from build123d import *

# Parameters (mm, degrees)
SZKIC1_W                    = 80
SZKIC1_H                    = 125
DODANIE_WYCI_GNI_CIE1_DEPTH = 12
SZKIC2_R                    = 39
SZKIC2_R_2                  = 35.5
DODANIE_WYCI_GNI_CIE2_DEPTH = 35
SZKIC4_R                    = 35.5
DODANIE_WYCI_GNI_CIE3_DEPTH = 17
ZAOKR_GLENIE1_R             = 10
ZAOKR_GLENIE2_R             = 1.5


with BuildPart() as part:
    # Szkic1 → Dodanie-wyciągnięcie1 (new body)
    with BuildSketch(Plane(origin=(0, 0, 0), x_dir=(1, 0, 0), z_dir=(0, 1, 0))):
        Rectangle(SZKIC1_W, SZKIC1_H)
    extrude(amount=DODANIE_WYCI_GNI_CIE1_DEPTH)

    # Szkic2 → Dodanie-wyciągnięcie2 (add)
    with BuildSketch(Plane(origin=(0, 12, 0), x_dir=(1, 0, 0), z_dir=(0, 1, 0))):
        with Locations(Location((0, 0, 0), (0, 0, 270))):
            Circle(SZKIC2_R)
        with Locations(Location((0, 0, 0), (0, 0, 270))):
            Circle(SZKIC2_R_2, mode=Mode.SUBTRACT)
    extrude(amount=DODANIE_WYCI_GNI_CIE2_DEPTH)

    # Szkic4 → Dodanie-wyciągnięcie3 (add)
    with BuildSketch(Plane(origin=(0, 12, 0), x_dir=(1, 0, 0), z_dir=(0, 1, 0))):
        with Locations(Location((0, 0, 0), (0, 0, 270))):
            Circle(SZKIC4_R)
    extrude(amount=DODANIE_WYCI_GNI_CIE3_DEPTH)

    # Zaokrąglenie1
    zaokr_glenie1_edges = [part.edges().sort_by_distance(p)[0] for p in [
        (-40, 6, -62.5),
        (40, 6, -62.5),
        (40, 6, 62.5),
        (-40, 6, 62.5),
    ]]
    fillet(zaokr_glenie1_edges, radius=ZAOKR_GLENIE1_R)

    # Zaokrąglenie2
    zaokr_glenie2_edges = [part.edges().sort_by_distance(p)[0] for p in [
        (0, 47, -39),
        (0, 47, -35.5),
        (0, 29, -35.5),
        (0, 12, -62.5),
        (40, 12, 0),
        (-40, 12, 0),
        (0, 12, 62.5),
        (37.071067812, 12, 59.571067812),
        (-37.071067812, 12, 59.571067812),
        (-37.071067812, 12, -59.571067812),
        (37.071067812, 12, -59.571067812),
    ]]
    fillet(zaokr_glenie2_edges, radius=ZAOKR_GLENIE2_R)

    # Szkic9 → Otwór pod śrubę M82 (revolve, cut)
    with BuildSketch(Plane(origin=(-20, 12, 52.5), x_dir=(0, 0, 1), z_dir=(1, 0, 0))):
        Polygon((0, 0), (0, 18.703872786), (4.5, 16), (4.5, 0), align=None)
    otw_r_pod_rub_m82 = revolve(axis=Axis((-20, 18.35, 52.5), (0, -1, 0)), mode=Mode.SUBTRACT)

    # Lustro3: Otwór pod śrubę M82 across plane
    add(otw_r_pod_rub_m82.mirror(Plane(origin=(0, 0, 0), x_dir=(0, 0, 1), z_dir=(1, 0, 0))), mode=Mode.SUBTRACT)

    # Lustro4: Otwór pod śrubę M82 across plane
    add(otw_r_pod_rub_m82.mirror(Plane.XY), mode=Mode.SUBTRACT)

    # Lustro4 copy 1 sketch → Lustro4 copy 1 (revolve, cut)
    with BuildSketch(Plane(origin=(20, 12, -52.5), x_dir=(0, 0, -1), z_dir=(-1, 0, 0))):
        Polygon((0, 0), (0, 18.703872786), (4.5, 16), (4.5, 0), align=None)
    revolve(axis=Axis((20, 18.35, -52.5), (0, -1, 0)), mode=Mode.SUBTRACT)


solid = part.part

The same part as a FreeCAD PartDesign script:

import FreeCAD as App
import Part
import Sketcher
from FreeCAD import Vector
Q = App.Units.Quantity


def edges_at(feature, points):
    """Names of the edges that pass closest to the given points."""
    edges = feature.Shape.Edges
    near = lambda p: min(range(len(edges)), key=lambda i: edges[i].distToShape(Part.Vertex(*p))[0])
    return sorted({f"Edge{near(p) + 1}" for p in points})


def add_polygon(sketch, points):
    """Adds a closed chain of lines whose ends are joined by coincident constraints."""
    first, n = sketch.GeometryCount, len(points)
    for a, b in zip(points, points[1:] + points[:1]):
        sketch.addGeometry(Part.LineSegment(App.Vector(*a, 0), App.Vector(*b, 0)), False)
    for i in range(n):
        sketch.addConstraint(Sketcher.Constraint("Coincident", first + i, 2, first + (i + 1) % n, 1))

doc = App.newDocument("Part")
body = doc.addObject("PartDesign::Body", "Body")

sketch1 = body.newObject("Sketcher::SketchObject", "Sketch")
sketch1.AttachmentSupport = (doc.getObject("XZ_Plane"), [""])
sketch1.MapMode = "FlatFace"
add_polygon(sketch1, [(-40, -62), (-40, 62), (40, 62), (40, -62)])
sketch1.addConstraint([
    Sketcher.Constraint("Vertical", 0),
    Sketcher.Constraint("Horizontal", 1),
    Sketcher.Constraint("Vertical", 2),
    Sketcher.Constraint("Horizontal", 3),
    Sketcher.Constraint("Symmetric", 0, 2, 2, 2, -1, 1),
    Sketcher.Constraint("DistanceX", 1, 1, 1, 2, Q("80 mm")),
    Sketcher.Constraint("DistanceY", 0, 1, 0, 2, Q("125 mm")),
])
pad1 = body.newObject("PartDesign::Pad", "Pad")
pad1.Profile = sketch1
pad1.Length = 12
pad1.Reversed = True

sketch2 = body.newObject("Sketcher::SketchObject", "Sketch001")
sketch2.AttachmentSupport = (doc.getObject("XZ_Plane"), [""])
sketch2.MapMode = "FlatFace"
sketch2.AttachmentOffset = App.Placement(Vector(0, 0, -12), App.Rotation())
sketch2.addGeometry([
    Part.Circle(Vector(0, 0, 0), Vector(0, 0, 1), 39),
    Part.Circle(Vector(0, 0, 0), Vector(0, 0, 1), 36),
], False)
sketch2.addConstraint([
    Sketcher.Constraint("Coincident", 0, 3, -1, 1),
    Sketcher.Constraint("Coincident", 1, 3, -1, 1),
    Sketcher.Constraint("Diameter", 0, Q("78 mm")),
    Sketcher.Constraint("Diameter", 1, Q("71 mm")),
])
pad2 = body.newObject("PartDesign::Pad", "Pad001")
pad2.Profile = sketch2
pad2.Length = 35
pad2.Reversed = True

sketch3 = body.newObject("Sketcher::SketchObject", "Sketch002")
sketch3.AttachmentSupport = (doc.getObject("XZ_Plane"), [""])
sketch3.MapMode = "FlatFace"
sketch3.AttachmentOffset = App.Placement(Vector(0, 0, -12), App.Rotation())
sketch3.addGeometry(Part.Circle(Vector(0, 0, 0), Vector(0, 0, 1), 36), False)
sketch3.addConstraint([
    Sketcher.Constraint("Coincident", 0, 3, -1, 1),
    Sketcher.Constraint("Diameter", 0, Q("71 mm")),
])
pad3 = body.newObject("PartDesign::Pad", "Pad002")
pad3.Profile = sketch3
pad3.Length = 17
pad3.Reversed = True
doc.recompute()

fillet = body.newObject("PartDesign::Fillet", "Fillet")
fillet.Base = (pad3, edges_at(pad3, [
    (-40, 6, -62.5),
    (40, 6, -62.5),
    (40, 6, 62.5),
    (-40, 6, 62.5),
]))
fillet.Radius = 10
doc.recompute()

fillet2 = body.newObject("PartDesign::Fillet", "Fillet001")
fillet2.Base = (fillet, edges_at(fillet, [
    (0, 47, -39),
    (0, 47, -35.5),
    (0, 29, -35.5),
    (0, 12, -62.5),
    (40, 12, 0),
    (-40, 12, 0),
    (0, 12, 62.5),
    (37.071, 12, 59.571),
    (-37.071, 12, 59.571),
    (-37.071, 12, -59.571),
    (37.071, 12, -59.571),
]))
fillet2.Radius = 1.5

sketch4 = body.newObject("Sketcher::SketchObject", "Sketch003")
sketch4.AttachmentSupport = (doc.getObject("YZ_Plane"), [""])
sketch4.MapMode = "FlatFace"
sketch4.AttachmentOffset = App.Placement(Vector(0, 0, -20), App.Rotation())
add_polygon(sketch4, [(-6.7, 52.5), (12, 52.5), (12, 57), (-4, 57)])
sketch4.addGeometry(Part.LineSegment(Vector(12, 52.5, 0), Vector(-6.7, 52.5, 0)), True)
sketch4.addConstraint([
    Sketcher.Constraint("Horizontal", 0),
    Sketcher.Constraint("Vertical", 1),
    Sketcher.Constraint("Horizontal", 2),
    Sketcher.Constraint("Horizontal", 4),
    Sketcher.Constraint("Coincident", 4, 1, 0, 2),
    Sketcher.Constraint("Equal", 0, 4),
    Sketcher.Constraint("DistanceX", 2, 2, 2, 1, Q("16 mm")),
    Sketcher.Constraint("Angle", 3, Q("-121 deg")),
    Sketcher.Constraint("DistanceY", 1, 1, 1, 2, Q("4.5 mm")),
    Sketcher.Constraint("DistanceX", -1, 1, 0, 2, Q("12 mm")),
    Sketcher.Constraint("DistanceY", -1, 1, 1, 2, Q("57 mm")),
])
groove = body.newObject("PartDesign::Groove", "Groove")
groove.Profile = sketch4
groove.ReferenceAxis = (sketch4, ["Axis0"])
groove.Angle = 360
doc.recompute()

mirrored = body.newObject("PartDesign::Mirrored", "Mirrored")
mirrored.Originals = [groove]
mirrored.MirrorPlane = (doc.getObject("YZ_Plane"), [""])
body.Tip = mirrored
doc.recompute()

mirrored2 = body.newObject("PartDesign::Mirrored", "Mirrored001")
mirrored2.Originals = [groove]
mirrored2.MirrorPlane = (doc.getObject("XY_Plane"), [""])
body.Tip = mirrored2

sketch5 = body.newObject("Sketcher::SketchObject", "Sketch004")
sketch5.AttachmentSupport = (doc.getObject("YZ_Plane"), [""])
sketch5.MapMode = "FlatFace"
sketch5.AttachmentOffset = App.Placement(Vector(0, 0, 20), App.Rotation())
add_polygon(sketch5, [(-6.7, -52.5), (12, -52.5), (12, -57), (-4, -57)])
sketch5.addGeometry(Part.LineSegment(Vector(12, -52.5, 0), Vector(-6.7, -52.5, 0)), True)
sketch5.addConstraint([
    Sketcher.Constraint("Horizontal", 0),
    Sketcher.Constraint("Vertical", 1),
    Sketcher.Constraint("Horizontal", 2),
    Sketcher.Constraint("Horizontal", 4),
    Sketcher.Constraint("Coincident", 4, 1, 0, 2),
    Sketcher.Constraint("Equal", 0, 4),
    Sketcher.Constraint("DistanceX", 2, 2, 2, 1, Q("16 mm")),
    Sketcher.Constraint("Angle", 3, Q("121 deg")),
    Sketcher.Constraint("DistanceY", 1, 2, 1, 1, Q("4.5 mm")),
    Sketcher.Constraint("DistanceX", -1, 1, 0, 2, Q("12 mm")),
    Sketcher.Constraint("DistanceY", 1, 2, -1, 1, Q("57 mm")),
])
groove2 = body.newObject("PartDesign::Groove", "Groove001")
groove2.Profile = sketch5
groove2.ReferenceAxis = (sketch5, ["Axis0"])
groove2.Angle = 360

doc.recompute()
